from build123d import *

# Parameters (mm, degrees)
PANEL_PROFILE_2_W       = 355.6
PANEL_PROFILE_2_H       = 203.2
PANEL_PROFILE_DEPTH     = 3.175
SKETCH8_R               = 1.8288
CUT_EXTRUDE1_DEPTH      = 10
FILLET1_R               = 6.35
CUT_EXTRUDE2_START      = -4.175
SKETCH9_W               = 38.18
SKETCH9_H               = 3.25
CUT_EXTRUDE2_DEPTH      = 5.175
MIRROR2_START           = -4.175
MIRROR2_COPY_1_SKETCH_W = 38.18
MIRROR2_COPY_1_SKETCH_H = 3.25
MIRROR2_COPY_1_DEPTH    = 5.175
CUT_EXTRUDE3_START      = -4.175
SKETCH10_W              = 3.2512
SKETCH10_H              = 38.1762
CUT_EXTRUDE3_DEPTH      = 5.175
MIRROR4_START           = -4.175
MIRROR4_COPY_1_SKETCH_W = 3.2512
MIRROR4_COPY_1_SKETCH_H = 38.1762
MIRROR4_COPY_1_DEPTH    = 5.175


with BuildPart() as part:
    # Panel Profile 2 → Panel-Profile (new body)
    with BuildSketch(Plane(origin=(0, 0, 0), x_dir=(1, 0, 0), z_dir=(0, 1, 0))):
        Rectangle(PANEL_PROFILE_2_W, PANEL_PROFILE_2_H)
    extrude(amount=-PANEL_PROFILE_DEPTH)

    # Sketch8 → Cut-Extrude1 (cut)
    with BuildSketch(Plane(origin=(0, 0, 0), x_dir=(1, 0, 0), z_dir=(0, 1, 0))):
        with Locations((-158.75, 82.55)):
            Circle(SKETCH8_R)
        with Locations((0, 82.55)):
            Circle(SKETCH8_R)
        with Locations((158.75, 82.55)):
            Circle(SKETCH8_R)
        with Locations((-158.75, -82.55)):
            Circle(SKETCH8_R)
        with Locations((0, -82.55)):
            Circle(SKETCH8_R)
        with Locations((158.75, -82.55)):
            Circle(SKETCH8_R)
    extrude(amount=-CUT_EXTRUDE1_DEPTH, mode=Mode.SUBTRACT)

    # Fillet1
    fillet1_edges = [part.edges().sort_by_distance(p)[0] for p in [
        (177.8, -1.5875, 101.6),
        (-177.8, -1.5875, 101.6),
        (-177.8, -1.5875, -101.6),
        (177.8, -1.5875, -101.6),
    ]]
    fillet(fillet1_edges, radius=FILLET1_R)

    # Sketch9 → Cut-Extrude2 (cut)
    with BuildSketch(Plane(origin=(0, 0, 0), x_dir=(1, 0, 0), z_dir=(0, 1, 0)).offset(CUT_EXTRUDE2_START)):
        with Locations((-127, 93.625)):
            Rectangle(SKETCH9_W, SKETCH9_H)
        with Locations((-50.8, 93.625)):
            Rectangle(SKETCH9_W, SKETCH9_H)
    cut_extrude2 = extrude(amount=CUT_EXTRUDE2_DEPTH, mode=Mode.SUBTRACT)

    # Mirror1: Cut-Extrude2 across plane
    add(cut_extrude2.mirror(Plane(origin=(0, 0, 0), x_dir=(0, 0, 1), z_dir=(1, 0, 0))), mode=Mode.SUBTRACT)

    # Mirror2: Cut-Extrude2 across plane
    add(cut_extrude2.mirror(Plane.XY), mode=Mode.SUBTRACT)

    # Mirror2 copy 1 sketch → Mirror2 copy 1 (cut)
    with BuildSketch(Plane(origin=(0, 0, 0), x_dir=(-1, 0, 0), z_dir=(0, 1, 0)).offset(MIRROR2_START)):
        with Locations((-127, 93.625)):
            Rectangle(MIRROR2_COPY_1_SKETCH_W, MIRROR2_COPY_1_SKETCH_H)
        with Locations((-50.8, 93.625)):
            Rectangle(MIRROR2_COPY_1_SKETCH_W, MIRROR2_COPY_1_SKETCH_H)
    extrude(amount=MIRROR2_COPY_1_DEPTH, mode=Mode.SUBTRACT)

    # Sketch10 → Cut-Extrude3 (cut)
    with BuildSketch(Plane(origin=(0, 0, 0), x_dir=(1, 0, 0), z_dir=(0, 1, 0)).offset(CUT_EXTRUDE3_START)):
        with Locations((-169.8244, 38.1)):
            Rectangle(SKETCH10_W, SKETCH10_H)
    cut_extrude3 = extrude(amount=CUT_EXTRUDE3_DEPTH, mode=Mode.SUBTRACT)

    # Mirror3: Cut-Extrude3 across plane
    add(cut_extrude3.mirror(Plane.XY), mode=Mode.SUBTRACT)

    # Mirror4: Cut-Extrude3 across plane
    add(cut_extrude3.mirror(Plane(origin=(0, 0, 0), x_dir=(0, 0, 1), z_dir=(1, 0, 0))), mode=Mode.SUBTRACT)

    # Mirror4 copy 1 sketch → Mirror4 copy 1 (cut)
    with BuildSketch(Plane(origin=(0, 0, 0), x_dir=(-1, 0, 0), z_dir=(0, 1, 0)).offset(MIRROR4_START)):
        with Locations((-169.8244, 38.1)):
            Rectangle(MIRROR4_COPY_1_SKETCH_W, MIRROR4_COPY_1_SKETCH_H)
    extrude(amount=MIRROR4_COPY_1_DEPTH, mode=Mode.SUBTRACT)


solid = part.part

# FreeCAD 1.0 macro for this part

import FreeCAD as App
import Part
import Sketcher
Q = App.Units.Quantity


def edges_at(feature, points):
    """Names of the edges that pass closest to the given points."""
    edges = feature.Shape.Edges
    near = lambda p: min(range(len(edges)), key=lambda i: edges[i].distToShape(Part.Vertex(*p))[0])
    return sorted({f"Edge{near(p) + 1}" for p in points})

doc = App.newDocument("Part")
params = doc.addObject("Spreadsheet::Sheet", "Params")
for row, (alias, value) in enumerate([
    ("sketch1_width", "14 in"),
    ("sketch1_height", "8 in"),
    ("pad1_length", "0.125 in"),
    ("sketch2_diameter", "0.144 in"),
    ("pocket1_length", "10 mm"),
    ("fillet_radius", "0.25 in"),
    ("pocket2_length", "5.175 mm"),
    ("pocket3_length", "5.175 mm"),
    ("sketch5_width", "0.128 in"),
    ("sketch5_height", "1.503 in"),
    ("pocket4_length", "5.175 mm"),
    ("sketch6_width", "0.128 in"),
    ("sketch6_height", "1.503 in"),
    ("pocket5_length", "5.175 mm"),
], start=1):
    params.set(f"A{row}", alias)
    params.set(f"B{row}", "=" + value)
    params.setAlias(f"B{row}", alias)

body = doc.addObject("PartDesign::Body", "Body")

sketch1 = body.newObject("Sketcher::SketchObject", "Sketch")
sketch1.AttachmentSupport = (doc.getObject("XZ_Plane"), [""])
sketch1.MapMode = "FlatFace"
sketch1.addGeometry(Part.LineSegment(App.Vector(-177.8, -101.6, 0), App.Vector(-177.8, 101.6, 0)), False)
sketch1.addGeometry(Part.LineSegment(App.Vector(-177.8, 101.6, 0), App.Vector(177.8, 101.6, 0)), False)
sketch1.addGeometry(Part.LineSegment(App.Vector(177.8, 101.6, 0), App.Vector(177.8, -101.6, 0)), False)
sketch1.addGeometry(Part.LineSegment(App.Vector(177.8, -101.6, 0), App.Vector(-177.8, -101.6, 0)), False)
sketch1.addConstraint(Sketcher.Constraint("Coincident", 0, 2, 1, 1))
sketch1.addConstraint(Sketcher.Constraint("Coincident", 1, 2, 2, 1))
sketch1.addConstraint(Sketcher.Constraint("Coincident", 2, 2, 3, 1))
sketch1.addConstraint(Sketcher.Constraint("Coincident", 3, 2, 0, 1))
sketch1.addConstraint(Sketcher.Constraint("Vertical", 0))
sketch1.addConstraint(Sketcher.Constraint("Horizontal", 1))
sketch1.addConstraint(Sketcher.Constraint("Vertical", 2))
sketch1.addConstraint(Sketcher.Constraint("Horizontal", 3))
sketch1.addConstraint(Sketcher.Constraint("Symmetric", 0, 2, 2, 2, -1, 1))
sketch1.addConstraint(Sketcher.Constraint("DistanceX", 1, 1, 1, 2, Q("14 in")))
sketch1.addConstraint(Sketcher.Constraint("DistanceY", 0, 1, 0, 2, Q("8 in")))
sketch1.setExpression("Constraints[9]", "Params.sketch1_width")
sketch1.setExpression("Constraints[10]", "Params.sketch1_height")
pad1 = body.newObject("PartDesign::Pad", "Pad")
pad1.Profile = sketch1
pad1.setExpression("Length", "Params.pad1_length")

sketch2 = body.newObject("Sketcher::SketchObject", "Sketch001")
sketch2.AttachmentSupport = (doc.getObject("XZ_Plane"), [""])
sketch2.MapMode = "FlatFace"
sketch2.addGeometry(Part.Circle(App.Vector(-158.75, -82.55, 0), App.Vector(0, 0, 1), 1.8288), False)
sketch2.addGeometry(Part.Circle(App.Vector(0, -82.55, 0), App.Vector(0, 0, 1), 1.8288), False)
sketch2.addGeometry(Part.Circle(App.Vector(158.75, -82.55, 0), App.Vector(0, 0, 1), 1.8288), False)
sketch2.addGeometry(Part.Circle(App.Vector(-158.75, 82.55, 0), App.Vector(0, 0, 1), 1.8288), False)
sketch2.addGeometry(Part.Circle(App.Vector(0, 82.55, 0), App.Vector(0, 0, 1), 1.8288), False)
sketch2.addGeometry(Part.Circle(App.Vector(158.75, 82.55, 0), App.Vector(0, 0, 1), 1.8288), False)
sketch2.addConstraint(Sketcher.Constraint("Equal", 0, 1))
sketch2.addConstraint(Sketcher.Constraint("Equal", 1, 2))
sketch2.addConstraint(Sketcher.Constraint("Equal", 2, 3))
sketch2.addConstraint(Sketcher.Constraint("Equal", 3, 4))
sketch2.addConstraint(Sketcher.Constraint("Equal", 4, 5))
sketch2.addConstraint(Sketcher.Constraint("Symmetric", 2, 3, 3, 3, -1, 1))
sketch2.addConstraint(Sketcher.Constraint("Symmetric", 1, 3, 4, 3, -1, 1))
sketch2.addConstraint(Sketcher.Constraint("Symmetric", 0, 3, 5, 3, -1, 1))
sketch2.addConstraint(Sketcher.Constraint("Symmetric", 0, 3, 2, 3, -2))
sketch2.addConstraint(Sketcher.Constraint("PointOnObject", 1, 3, -2))
sketch2.addConstraint(Sketcher.Constraint("Horizontal", 0, 3, 1, 3))
sketch2.addConstraint(Sketcher.Constraint("Diameter", 0, Q("0.144 in")))
sketch2.addConstraint(Sketcher.Constraint("DistanceX", 0, 3, 2, 3, Q("12.5 in")))
sketch2.addConstraint(Sketcher.Constraint("DistanceY", 0, 3, 3, 3, Q("6.5 in")))
sketch2.setExpression("Constraints[11]", "Params.sketch2_diameter")
pocket1 = body.newObject("PartDesign::Pocket", "Pocket")
pocket1.Profile = sketch2
pocket1.setExpression("Length", "Params.pocket1_length")
pocket1.Reversed = True
doc.recompute()

fillet = body.newObject("PartDesign::Fillet", "Fillet")
fillet.Base = (pocket1, edges_at(pocket1, [
    (177.8, -1.587, 101.6),
    (-177.8, -1.587, 101.6),
    (-177.8, -1.587, -101.6),
    (177.8, -1.587, -101.6),
]))
fillet.setExpression("Radius", "Params.fillet_radius")

sketch3 = body.newObject("Sketcher::SketchObject", "Sketch002")
sketch3.AttachmentSupport = (doc.getObject("XZ_Plane"), [""])
sketch3.MapMode = "FlatFace"
sketch3.AttachmentOffset = App.Placement(App.Vector(0, 0, 4.175), App.Rotation())
sketch3.addGeometry(Part.LineSegment(App.Vector(-146.09, -95.25, 0), App.Vector(-146.09, -92, 0)), False)
sketch3.addGeometry(Part.LineSegment(App.Vector(-146.09, -92, 0), App.Vector(-107.91, -92, 0)), False)
sketch3.addGeometry(Part.LineSegment(App.Vector(-107.91, -92, 0), App.Vector(-107.91, -95.25, 0)), False)
sketch3.addGeometry(Part.LineSegment(App.Vector(-107.91, -95.25, 0), App.Vector(-146.09, -95.25, 0)), False)
sketch3.addGeometry(Part.LineSegment(App.Vector(-69.89, -95.25, 0), App.Vector(-69.89, -92, 0)), False)
sketch3.addGeometry(Part.LineSegment(App.Vector(-69.89, -92, 0), App.Vector(-31.71, -92, 0)), False)
sketch3.addGeometry(Part.LineSegment(App.Vector(-31.71, -92, 0), App.Vector(-31.71, -95.25, 0)), False)
sketch3.addGeometry(Part.LineSegment(App.Vector(-31.71, -95.25, 0), App.Vector(-69.89, -95.25, 0)), False)
sketch3.addConstraint(Sketcher.Constraint("Coincident", 0, 2, 1, 1))
sketch3.addConstraint(Sketcher.Constraint("Coincident", 1, 2, 2, 1))
sketch3.addConstraint(Sketcher.Constraint("Coincident", 2, 2, 3, 1))
sketch3.addConstraint(Sketcher.Constraint("Coincident", 3, 2, 0, 1))
sketch3.addConstraint(Sketcher.Constraint("Coincident", 4, 2, 5, 1))
sketch3.addConstraint(Sketcher.Constraint("Coincident", 5, 2, 6, 1))
sketch3.addConstraint(Sketcher.Constraint("Coincident", 6, 2, 7, 1))
sketch3.addConstraint(Sketcher.Constraint("Coincident", 7, 2, 4, 1))
sketch3.addConstraint(Sketcher.Constraint("Vertical", 0))
sketch3.addConstraint(Sketcher.Constraint("Horizontal", 1))
sketch3.addConstraint(Sketcher.Constraint("Vertical", 2))
sketch3.addConstraint(Sketcher.Constraint("Horizontal", 3))
sketch3.addConstraint(Sketcher.Constraint("Vertical", 4))
sketch3.addConstraint(Sketcher.Constraint("Horizontal", 5))
sketch3.addConstraint(Sketcher.Constraint("Vertical", 6))
sketch3.addConstraint(Sketcher.Constraint("Horizontal", 7))
sketch3.addConstraint(Sketcher.Constraint("Horizontal", 1, 2, 4, 2))
sketch3.addConstraint(Sketcher.Constraint("Horizontal", 3, 2, 6, 2))
sketch3.addConstraint(Sketcher.Constraint("Equal", 3, 5))
sketch3.addConstraint(Sketcher.Constraint("DistanceX", 0, 2, 4, 2, Q("3 in")))
sketch3.addConstraint(Sketcher.Constraint("DistanceY", 2, 2, -1, 1, Q("3.75 in")))
sketch3.addConstraint(Sketcher.Constraint("DistanceX", 1, 1, 1, 2, 38.18))
sketch3.addConstraint(Sketcher.Constraint("DistanceY", 0, 1, 0, 2, 3.25))
sketch3.addConstraint(Sketcher.Constraint("DistanceX", 0, 2, -1, 1, 146.09))
pocket2 = body.newObject("PartDesign::Pocket", "Pocket001")
pocket2.Profile = sketch3
pocket2.setExpression("Length", "Params.pocket2_length")
doc.recompute()

mirrored = body.newObject("PartDesign::Mirrored", "Mirrored")
mirrored.Originals = [pocket2]
mirrored.MirrorPlane = (doc.getObject("YZ_Plane"), [""])
body.Tip = mirrored
doc.recompute()

mirrored2 = body.newObject("PartDesign::Mirrored", "Mirrored001")
mirrored2.Originals = [pocket2]
mirrored2.MirrorPlane = (doc.getObject("XY_Plane"), [""])
body.Tip = mirrored2

sketch4 = body.newObject("Sketcher::SketchObject", "Sketch003")
sketch4.AttachmentSupport = (doc.getObject("XZ_Plane"), [""])
sketch4.MapMode = "FlatFace"
sketch4.AttachmentOffset = App.Placement(App.Vector(0, 0, 4.175), App.Rotation())
sketch4.addGeometry(Part.LineSegment(App.Vector(146.09, 95.25, 0), App.Vector(146.09, 92, 0)), False)
sketch4.addGeometry(Part.LineSegment(App.Vector(146.09, 92, 0), App.Vector(107.91, 92, 0)), False)
sketch4.addGeometry(Part.LineSegment(App.Vector(107.91, 92, 0), App.Vector(107.91, 95.25, 0)), False)
sketch4.addGeometry(Part.LineSegment(App.Vector(107.91, 95.25, 0), App.Vector(146.09, 95.25, 0)), False)
sketch4.addGeometry(Part.LineSegment(App.Vector(69.89, 95.25, 0), App.Vector(69.89, 92, 0)), False)
sketch4.addGeometry(Part.LineSegment(App.Vector(69.89, 92, 0), App.Vector(31.71, 92, 0)), False)
sketch4.addGeometry(Part.LineSegment(App.Vector(31.71, 92, 0), App.Vector(31.71, 95.25, 0)), False)
sketch4.addGeometry(Part.LineSegment(App.Vector(31.71, 95.25, 0), App.Vector(69.89, 95.25, 0)), False)
sketch4.addConstraint(Sketcher.Constraint("Coincident", 0, 2, 1, 1))
sketch4.addConstraint(Sketcher.Constraint("Coincident", 1, 2, 2, 1))
sketch4.addConstraint(Sketcher.Constraint("Coincident", 2, 2, 3, 1))
sketch4.addConstraint(Sketcher.Constraint("Coincident", 3, 2, 0, 1))
sketch4.addConstraint(Sketcher.Constraint("Coincident", 4, 2, 5, 1))
sketch4.addConstraint(Sketcher.Constraint("Coincident", 5, 2, 6, 1))
sketch4.addConstraint(Sketcher.Constraint("Coincident", 6, 2, 7, 1))
sketch4.addConstraint(Sketcher.Constraint("Coincident", 7, 2, 4, 1))
sketch4.addConstraint(Sketcher.Constraint("Vertical", 0))
sketch4.addConstraint(Sketcher.Constraint("Horizontal", 1))
sketch4.addConstraint(Sketcher.Constraint("Vertical", 2))
sketch4.addConstraint(Sketcher.Constraint("Horizontal", 3))
sketch4.addConstraint(Sketcher.Constraint("Vertical", 4))
sketch4.addConstraint(Sketcher.Constraint("Horizontal", 5))
sketch4.addConstraint(Sketcher.Constraint("Vertical", 6))
sketch4.addConstraint(Sketcher.Constraint("Horizontal", 7))
sketch4.addConstraint(Sketcher.Constraint("Horizontal", 1, 2, 4, 2))
sketch4.addConstraint(Sketcher.Constraint("Horizontal", 3, 2, 6, 2))
sketch4.addConstraint(Sketcher.Constraint("Equal", 3, 5))
sketch4.addConstraint(Sketcher.Constraint("DistanceX", 4, 2, 0, 2, Q("3 in")))
sketch4.addConstraint(Sketcher.Constraint("DistanceY", -1, 1, 2, 2, Q("3.75 in")))
sketch4.addConstraint(Sketcher.Constraint("DistanceX", 1, 2, 1, 1, 38.18))
sketch4.addConstraint(Sketcher.Constraint("DistanceY", 0, 2, 0, 1, 3.25))
sketch4.addConstraint(Sketcher.Constraint("DistanceX", -1, 1, 0, 2, 146.09))
pocket3 = body.newObject("PartDesign::Pocket", "Pocket002")
pocket3.Profile = sketch4
pocket3.setExpression("Length", "Params.pocket3_length")

sketch5 = body.newObject("Sketcher::SketchObject", "Sketch004")
sketch5.AttachmentSupport = (doc.getObject("XZ_Plane"), [""])
sketch5.MapMode = "FlatFace"
sketch5.AttachmentOffset = App.Placement(App.Vector(0, 0, 4.175), App.Rotation())
sketch5.addGeometry(Part.LineSegment(App.Vector(-171.45, -57.1881, 0), App.Vector(-171.45, -19.0119, 0)), False)
sketch5.addGeometry(Part.LineSegment(App.Vector(-171.45, -19.0119, 0), App.Vector(-168.1988, -19.0119, 0)), False)
sketch5.addGeometry(Part.LineSegment(App.Vector(-168.1988, -19.0119, 0), App.Vector(-168.1988, -57.1881, 0)), False)
sketch5.addGeometry(Part.LineSegment(App.Vector(-168.1988, -57.1881, 0), App.Vector(-171.45, -57.1881, 0)), False)
sketch5.addConstraint(Sketcher.Constraint("Coincident", 0, 2, 1, 1))
sketch5.addConstraint(Sketcher.Constraint("Coincident", 1, 2, 2, 1))
sketch5.addConstraint(Sketcher.Constraint("Coincident", 2, 2, 3, 1))
sketch5.addConstraint(Sketcher.Constraint("Coincident", 3, 2, 0, 1))
sketch5.addConstraint(Sketcher.Constraint("Vertical", 0))
sketch5.addConstraint(Sketcher.Constraint("Horizontal", 1))
sketch5.addConstraint(Sketcher.Constraint("Vertical", 2))
sketch5.addConstraint(Sketcher.Constraint("Horizontal", 3))
sketch5.addConstraint(Sketcher.Constraint("DistanceX", 1, 1, 1, 2, Q("0.128 in")))
sketch5.addConstraint(Sketcher.Constraint("DistanceY", 0, 1, 0, 2, Q("1.503 in")))
sketch5.addConstraint(Sketcher.Constraint("DistanceX", 0, 2, -1, 1, Q("6.75 in")))
sketch5.addConstraint(Sketcher.Constraint("DistanceY", 0, 2, -1, 1, Q("0.7485 in")))
sketch5.setExpression("Constraints[8]", "Params.sketch5_width")
sketch5.setExpression("Constraints[9]", "Params.sketch5_height")
pocket4 = body.newObject("PartDesign::Pocket", "Pocket003")
pocket4.Profile = sketch5
pocket4.setExpression("Length", "Params.pocket4_length")
doc.recompute()

mirrored3 = body.newObject("PartDesign::Mirrored", "Mirrored002")
mirrored3.Originals = [pocket4]
mirrored3.MirrorPlane = (doc.getObject("XY_Plane"), [""])
body.Tip = mirrored3
doc.recompute()

mirrored4 = body.newObject("PartDesign::Mirrored", "Mirrored003")
mirrored4.Originals = [pocket4]
mirrored4.MirrorPlane = (doc.getObject("YZ_Plane"), [""])
body.Tip = mirrored4

sketch6 = body.newObject("Sketcher::SketchObject", "Sketch005")
sketch6.AttachmentSupport = (doc.getObject("XZ_Plane"), [""])
sketch6.MapMode = "FlatFace"
sketch6.AttachmentOffset = App.Placement(App.Vector(0, 0, 4.175), App.Rotation())
sketch6.addGeometry(Part.LineSegment(App.Vector(171.45, 57.1881, 0), App.Vector(171.45, 19.0119, 0)), False)
sketch6.addGeometry(Part.LineSegment(App.Vector(171.45, 19.0119, 0), App.Vector(168.1988, 19.0119, 0)), False)
sketch6.addGeometry(Part.LineSegment(App.Vector(168.1988, 19.0119, 0), App.Vector(168.1988, 57.1881, 0)), False)
sketch6.addGeometry(Part.LineSegment(App.Vector(168.1988, 57.1881, 0), App.Vector(171.45, 57.1881, 0)), False)
sketch6.addConstraint(Sketcher.Constraint("Coincident", 0, 2, 1, 1))
sketch6.addConstraint(Sketcher.Constraint("Coincident", 1, 2, 2, 1))
sketch6.addConstraint(Sketcher.Constraint("Coincident", 2, 2, 3, 1))
sketch6.addConstraint(Sketcher.Constraint("Coincident", 3, 2, 0, 1))
sketch6.addConstraint(Sketcher.Constraint("Vertical", 0))
sketch6.addConstraint(Sketcher.Constraint("Horizontal", 1))
sketch6.addConstraint(Sketcher.Constraint("Vertical", 2))
sketch6.addConstraint(Sketcher.Constraint("Horizontal", 3))
sketch6.addConstraint(Sketcher.Constraint("DistanceX", 1, 2, 1, 1, Q("0.128 in")))
sketch6.addConstraint(Sketcher.Constraint("DistanceY", 0, 2, 0, 1, Q("1.503 in")))
sketch6.addConstraint(Sketcher.Constraint("DistanceX", -1, 1, 0, 2, Q("6.75 in")))
sketch6.addConstraint(Sketcher.Constraint("DistanceY", -1, 1, 0, 2, Q("0.7485 in")))
sketch6.setExpression("Constraints[8]", "Params.sketch6_width")
sketch6.setExpression("Constraints[9]", "Params.sketch6_height")
pocket5 = body.newObject("PartDesign::Pocket", "Pocket004")
pocket5.Profile = sketch6
pocket5.setExpression("Length", "Params.pocket5_length")

doc.recompute()
